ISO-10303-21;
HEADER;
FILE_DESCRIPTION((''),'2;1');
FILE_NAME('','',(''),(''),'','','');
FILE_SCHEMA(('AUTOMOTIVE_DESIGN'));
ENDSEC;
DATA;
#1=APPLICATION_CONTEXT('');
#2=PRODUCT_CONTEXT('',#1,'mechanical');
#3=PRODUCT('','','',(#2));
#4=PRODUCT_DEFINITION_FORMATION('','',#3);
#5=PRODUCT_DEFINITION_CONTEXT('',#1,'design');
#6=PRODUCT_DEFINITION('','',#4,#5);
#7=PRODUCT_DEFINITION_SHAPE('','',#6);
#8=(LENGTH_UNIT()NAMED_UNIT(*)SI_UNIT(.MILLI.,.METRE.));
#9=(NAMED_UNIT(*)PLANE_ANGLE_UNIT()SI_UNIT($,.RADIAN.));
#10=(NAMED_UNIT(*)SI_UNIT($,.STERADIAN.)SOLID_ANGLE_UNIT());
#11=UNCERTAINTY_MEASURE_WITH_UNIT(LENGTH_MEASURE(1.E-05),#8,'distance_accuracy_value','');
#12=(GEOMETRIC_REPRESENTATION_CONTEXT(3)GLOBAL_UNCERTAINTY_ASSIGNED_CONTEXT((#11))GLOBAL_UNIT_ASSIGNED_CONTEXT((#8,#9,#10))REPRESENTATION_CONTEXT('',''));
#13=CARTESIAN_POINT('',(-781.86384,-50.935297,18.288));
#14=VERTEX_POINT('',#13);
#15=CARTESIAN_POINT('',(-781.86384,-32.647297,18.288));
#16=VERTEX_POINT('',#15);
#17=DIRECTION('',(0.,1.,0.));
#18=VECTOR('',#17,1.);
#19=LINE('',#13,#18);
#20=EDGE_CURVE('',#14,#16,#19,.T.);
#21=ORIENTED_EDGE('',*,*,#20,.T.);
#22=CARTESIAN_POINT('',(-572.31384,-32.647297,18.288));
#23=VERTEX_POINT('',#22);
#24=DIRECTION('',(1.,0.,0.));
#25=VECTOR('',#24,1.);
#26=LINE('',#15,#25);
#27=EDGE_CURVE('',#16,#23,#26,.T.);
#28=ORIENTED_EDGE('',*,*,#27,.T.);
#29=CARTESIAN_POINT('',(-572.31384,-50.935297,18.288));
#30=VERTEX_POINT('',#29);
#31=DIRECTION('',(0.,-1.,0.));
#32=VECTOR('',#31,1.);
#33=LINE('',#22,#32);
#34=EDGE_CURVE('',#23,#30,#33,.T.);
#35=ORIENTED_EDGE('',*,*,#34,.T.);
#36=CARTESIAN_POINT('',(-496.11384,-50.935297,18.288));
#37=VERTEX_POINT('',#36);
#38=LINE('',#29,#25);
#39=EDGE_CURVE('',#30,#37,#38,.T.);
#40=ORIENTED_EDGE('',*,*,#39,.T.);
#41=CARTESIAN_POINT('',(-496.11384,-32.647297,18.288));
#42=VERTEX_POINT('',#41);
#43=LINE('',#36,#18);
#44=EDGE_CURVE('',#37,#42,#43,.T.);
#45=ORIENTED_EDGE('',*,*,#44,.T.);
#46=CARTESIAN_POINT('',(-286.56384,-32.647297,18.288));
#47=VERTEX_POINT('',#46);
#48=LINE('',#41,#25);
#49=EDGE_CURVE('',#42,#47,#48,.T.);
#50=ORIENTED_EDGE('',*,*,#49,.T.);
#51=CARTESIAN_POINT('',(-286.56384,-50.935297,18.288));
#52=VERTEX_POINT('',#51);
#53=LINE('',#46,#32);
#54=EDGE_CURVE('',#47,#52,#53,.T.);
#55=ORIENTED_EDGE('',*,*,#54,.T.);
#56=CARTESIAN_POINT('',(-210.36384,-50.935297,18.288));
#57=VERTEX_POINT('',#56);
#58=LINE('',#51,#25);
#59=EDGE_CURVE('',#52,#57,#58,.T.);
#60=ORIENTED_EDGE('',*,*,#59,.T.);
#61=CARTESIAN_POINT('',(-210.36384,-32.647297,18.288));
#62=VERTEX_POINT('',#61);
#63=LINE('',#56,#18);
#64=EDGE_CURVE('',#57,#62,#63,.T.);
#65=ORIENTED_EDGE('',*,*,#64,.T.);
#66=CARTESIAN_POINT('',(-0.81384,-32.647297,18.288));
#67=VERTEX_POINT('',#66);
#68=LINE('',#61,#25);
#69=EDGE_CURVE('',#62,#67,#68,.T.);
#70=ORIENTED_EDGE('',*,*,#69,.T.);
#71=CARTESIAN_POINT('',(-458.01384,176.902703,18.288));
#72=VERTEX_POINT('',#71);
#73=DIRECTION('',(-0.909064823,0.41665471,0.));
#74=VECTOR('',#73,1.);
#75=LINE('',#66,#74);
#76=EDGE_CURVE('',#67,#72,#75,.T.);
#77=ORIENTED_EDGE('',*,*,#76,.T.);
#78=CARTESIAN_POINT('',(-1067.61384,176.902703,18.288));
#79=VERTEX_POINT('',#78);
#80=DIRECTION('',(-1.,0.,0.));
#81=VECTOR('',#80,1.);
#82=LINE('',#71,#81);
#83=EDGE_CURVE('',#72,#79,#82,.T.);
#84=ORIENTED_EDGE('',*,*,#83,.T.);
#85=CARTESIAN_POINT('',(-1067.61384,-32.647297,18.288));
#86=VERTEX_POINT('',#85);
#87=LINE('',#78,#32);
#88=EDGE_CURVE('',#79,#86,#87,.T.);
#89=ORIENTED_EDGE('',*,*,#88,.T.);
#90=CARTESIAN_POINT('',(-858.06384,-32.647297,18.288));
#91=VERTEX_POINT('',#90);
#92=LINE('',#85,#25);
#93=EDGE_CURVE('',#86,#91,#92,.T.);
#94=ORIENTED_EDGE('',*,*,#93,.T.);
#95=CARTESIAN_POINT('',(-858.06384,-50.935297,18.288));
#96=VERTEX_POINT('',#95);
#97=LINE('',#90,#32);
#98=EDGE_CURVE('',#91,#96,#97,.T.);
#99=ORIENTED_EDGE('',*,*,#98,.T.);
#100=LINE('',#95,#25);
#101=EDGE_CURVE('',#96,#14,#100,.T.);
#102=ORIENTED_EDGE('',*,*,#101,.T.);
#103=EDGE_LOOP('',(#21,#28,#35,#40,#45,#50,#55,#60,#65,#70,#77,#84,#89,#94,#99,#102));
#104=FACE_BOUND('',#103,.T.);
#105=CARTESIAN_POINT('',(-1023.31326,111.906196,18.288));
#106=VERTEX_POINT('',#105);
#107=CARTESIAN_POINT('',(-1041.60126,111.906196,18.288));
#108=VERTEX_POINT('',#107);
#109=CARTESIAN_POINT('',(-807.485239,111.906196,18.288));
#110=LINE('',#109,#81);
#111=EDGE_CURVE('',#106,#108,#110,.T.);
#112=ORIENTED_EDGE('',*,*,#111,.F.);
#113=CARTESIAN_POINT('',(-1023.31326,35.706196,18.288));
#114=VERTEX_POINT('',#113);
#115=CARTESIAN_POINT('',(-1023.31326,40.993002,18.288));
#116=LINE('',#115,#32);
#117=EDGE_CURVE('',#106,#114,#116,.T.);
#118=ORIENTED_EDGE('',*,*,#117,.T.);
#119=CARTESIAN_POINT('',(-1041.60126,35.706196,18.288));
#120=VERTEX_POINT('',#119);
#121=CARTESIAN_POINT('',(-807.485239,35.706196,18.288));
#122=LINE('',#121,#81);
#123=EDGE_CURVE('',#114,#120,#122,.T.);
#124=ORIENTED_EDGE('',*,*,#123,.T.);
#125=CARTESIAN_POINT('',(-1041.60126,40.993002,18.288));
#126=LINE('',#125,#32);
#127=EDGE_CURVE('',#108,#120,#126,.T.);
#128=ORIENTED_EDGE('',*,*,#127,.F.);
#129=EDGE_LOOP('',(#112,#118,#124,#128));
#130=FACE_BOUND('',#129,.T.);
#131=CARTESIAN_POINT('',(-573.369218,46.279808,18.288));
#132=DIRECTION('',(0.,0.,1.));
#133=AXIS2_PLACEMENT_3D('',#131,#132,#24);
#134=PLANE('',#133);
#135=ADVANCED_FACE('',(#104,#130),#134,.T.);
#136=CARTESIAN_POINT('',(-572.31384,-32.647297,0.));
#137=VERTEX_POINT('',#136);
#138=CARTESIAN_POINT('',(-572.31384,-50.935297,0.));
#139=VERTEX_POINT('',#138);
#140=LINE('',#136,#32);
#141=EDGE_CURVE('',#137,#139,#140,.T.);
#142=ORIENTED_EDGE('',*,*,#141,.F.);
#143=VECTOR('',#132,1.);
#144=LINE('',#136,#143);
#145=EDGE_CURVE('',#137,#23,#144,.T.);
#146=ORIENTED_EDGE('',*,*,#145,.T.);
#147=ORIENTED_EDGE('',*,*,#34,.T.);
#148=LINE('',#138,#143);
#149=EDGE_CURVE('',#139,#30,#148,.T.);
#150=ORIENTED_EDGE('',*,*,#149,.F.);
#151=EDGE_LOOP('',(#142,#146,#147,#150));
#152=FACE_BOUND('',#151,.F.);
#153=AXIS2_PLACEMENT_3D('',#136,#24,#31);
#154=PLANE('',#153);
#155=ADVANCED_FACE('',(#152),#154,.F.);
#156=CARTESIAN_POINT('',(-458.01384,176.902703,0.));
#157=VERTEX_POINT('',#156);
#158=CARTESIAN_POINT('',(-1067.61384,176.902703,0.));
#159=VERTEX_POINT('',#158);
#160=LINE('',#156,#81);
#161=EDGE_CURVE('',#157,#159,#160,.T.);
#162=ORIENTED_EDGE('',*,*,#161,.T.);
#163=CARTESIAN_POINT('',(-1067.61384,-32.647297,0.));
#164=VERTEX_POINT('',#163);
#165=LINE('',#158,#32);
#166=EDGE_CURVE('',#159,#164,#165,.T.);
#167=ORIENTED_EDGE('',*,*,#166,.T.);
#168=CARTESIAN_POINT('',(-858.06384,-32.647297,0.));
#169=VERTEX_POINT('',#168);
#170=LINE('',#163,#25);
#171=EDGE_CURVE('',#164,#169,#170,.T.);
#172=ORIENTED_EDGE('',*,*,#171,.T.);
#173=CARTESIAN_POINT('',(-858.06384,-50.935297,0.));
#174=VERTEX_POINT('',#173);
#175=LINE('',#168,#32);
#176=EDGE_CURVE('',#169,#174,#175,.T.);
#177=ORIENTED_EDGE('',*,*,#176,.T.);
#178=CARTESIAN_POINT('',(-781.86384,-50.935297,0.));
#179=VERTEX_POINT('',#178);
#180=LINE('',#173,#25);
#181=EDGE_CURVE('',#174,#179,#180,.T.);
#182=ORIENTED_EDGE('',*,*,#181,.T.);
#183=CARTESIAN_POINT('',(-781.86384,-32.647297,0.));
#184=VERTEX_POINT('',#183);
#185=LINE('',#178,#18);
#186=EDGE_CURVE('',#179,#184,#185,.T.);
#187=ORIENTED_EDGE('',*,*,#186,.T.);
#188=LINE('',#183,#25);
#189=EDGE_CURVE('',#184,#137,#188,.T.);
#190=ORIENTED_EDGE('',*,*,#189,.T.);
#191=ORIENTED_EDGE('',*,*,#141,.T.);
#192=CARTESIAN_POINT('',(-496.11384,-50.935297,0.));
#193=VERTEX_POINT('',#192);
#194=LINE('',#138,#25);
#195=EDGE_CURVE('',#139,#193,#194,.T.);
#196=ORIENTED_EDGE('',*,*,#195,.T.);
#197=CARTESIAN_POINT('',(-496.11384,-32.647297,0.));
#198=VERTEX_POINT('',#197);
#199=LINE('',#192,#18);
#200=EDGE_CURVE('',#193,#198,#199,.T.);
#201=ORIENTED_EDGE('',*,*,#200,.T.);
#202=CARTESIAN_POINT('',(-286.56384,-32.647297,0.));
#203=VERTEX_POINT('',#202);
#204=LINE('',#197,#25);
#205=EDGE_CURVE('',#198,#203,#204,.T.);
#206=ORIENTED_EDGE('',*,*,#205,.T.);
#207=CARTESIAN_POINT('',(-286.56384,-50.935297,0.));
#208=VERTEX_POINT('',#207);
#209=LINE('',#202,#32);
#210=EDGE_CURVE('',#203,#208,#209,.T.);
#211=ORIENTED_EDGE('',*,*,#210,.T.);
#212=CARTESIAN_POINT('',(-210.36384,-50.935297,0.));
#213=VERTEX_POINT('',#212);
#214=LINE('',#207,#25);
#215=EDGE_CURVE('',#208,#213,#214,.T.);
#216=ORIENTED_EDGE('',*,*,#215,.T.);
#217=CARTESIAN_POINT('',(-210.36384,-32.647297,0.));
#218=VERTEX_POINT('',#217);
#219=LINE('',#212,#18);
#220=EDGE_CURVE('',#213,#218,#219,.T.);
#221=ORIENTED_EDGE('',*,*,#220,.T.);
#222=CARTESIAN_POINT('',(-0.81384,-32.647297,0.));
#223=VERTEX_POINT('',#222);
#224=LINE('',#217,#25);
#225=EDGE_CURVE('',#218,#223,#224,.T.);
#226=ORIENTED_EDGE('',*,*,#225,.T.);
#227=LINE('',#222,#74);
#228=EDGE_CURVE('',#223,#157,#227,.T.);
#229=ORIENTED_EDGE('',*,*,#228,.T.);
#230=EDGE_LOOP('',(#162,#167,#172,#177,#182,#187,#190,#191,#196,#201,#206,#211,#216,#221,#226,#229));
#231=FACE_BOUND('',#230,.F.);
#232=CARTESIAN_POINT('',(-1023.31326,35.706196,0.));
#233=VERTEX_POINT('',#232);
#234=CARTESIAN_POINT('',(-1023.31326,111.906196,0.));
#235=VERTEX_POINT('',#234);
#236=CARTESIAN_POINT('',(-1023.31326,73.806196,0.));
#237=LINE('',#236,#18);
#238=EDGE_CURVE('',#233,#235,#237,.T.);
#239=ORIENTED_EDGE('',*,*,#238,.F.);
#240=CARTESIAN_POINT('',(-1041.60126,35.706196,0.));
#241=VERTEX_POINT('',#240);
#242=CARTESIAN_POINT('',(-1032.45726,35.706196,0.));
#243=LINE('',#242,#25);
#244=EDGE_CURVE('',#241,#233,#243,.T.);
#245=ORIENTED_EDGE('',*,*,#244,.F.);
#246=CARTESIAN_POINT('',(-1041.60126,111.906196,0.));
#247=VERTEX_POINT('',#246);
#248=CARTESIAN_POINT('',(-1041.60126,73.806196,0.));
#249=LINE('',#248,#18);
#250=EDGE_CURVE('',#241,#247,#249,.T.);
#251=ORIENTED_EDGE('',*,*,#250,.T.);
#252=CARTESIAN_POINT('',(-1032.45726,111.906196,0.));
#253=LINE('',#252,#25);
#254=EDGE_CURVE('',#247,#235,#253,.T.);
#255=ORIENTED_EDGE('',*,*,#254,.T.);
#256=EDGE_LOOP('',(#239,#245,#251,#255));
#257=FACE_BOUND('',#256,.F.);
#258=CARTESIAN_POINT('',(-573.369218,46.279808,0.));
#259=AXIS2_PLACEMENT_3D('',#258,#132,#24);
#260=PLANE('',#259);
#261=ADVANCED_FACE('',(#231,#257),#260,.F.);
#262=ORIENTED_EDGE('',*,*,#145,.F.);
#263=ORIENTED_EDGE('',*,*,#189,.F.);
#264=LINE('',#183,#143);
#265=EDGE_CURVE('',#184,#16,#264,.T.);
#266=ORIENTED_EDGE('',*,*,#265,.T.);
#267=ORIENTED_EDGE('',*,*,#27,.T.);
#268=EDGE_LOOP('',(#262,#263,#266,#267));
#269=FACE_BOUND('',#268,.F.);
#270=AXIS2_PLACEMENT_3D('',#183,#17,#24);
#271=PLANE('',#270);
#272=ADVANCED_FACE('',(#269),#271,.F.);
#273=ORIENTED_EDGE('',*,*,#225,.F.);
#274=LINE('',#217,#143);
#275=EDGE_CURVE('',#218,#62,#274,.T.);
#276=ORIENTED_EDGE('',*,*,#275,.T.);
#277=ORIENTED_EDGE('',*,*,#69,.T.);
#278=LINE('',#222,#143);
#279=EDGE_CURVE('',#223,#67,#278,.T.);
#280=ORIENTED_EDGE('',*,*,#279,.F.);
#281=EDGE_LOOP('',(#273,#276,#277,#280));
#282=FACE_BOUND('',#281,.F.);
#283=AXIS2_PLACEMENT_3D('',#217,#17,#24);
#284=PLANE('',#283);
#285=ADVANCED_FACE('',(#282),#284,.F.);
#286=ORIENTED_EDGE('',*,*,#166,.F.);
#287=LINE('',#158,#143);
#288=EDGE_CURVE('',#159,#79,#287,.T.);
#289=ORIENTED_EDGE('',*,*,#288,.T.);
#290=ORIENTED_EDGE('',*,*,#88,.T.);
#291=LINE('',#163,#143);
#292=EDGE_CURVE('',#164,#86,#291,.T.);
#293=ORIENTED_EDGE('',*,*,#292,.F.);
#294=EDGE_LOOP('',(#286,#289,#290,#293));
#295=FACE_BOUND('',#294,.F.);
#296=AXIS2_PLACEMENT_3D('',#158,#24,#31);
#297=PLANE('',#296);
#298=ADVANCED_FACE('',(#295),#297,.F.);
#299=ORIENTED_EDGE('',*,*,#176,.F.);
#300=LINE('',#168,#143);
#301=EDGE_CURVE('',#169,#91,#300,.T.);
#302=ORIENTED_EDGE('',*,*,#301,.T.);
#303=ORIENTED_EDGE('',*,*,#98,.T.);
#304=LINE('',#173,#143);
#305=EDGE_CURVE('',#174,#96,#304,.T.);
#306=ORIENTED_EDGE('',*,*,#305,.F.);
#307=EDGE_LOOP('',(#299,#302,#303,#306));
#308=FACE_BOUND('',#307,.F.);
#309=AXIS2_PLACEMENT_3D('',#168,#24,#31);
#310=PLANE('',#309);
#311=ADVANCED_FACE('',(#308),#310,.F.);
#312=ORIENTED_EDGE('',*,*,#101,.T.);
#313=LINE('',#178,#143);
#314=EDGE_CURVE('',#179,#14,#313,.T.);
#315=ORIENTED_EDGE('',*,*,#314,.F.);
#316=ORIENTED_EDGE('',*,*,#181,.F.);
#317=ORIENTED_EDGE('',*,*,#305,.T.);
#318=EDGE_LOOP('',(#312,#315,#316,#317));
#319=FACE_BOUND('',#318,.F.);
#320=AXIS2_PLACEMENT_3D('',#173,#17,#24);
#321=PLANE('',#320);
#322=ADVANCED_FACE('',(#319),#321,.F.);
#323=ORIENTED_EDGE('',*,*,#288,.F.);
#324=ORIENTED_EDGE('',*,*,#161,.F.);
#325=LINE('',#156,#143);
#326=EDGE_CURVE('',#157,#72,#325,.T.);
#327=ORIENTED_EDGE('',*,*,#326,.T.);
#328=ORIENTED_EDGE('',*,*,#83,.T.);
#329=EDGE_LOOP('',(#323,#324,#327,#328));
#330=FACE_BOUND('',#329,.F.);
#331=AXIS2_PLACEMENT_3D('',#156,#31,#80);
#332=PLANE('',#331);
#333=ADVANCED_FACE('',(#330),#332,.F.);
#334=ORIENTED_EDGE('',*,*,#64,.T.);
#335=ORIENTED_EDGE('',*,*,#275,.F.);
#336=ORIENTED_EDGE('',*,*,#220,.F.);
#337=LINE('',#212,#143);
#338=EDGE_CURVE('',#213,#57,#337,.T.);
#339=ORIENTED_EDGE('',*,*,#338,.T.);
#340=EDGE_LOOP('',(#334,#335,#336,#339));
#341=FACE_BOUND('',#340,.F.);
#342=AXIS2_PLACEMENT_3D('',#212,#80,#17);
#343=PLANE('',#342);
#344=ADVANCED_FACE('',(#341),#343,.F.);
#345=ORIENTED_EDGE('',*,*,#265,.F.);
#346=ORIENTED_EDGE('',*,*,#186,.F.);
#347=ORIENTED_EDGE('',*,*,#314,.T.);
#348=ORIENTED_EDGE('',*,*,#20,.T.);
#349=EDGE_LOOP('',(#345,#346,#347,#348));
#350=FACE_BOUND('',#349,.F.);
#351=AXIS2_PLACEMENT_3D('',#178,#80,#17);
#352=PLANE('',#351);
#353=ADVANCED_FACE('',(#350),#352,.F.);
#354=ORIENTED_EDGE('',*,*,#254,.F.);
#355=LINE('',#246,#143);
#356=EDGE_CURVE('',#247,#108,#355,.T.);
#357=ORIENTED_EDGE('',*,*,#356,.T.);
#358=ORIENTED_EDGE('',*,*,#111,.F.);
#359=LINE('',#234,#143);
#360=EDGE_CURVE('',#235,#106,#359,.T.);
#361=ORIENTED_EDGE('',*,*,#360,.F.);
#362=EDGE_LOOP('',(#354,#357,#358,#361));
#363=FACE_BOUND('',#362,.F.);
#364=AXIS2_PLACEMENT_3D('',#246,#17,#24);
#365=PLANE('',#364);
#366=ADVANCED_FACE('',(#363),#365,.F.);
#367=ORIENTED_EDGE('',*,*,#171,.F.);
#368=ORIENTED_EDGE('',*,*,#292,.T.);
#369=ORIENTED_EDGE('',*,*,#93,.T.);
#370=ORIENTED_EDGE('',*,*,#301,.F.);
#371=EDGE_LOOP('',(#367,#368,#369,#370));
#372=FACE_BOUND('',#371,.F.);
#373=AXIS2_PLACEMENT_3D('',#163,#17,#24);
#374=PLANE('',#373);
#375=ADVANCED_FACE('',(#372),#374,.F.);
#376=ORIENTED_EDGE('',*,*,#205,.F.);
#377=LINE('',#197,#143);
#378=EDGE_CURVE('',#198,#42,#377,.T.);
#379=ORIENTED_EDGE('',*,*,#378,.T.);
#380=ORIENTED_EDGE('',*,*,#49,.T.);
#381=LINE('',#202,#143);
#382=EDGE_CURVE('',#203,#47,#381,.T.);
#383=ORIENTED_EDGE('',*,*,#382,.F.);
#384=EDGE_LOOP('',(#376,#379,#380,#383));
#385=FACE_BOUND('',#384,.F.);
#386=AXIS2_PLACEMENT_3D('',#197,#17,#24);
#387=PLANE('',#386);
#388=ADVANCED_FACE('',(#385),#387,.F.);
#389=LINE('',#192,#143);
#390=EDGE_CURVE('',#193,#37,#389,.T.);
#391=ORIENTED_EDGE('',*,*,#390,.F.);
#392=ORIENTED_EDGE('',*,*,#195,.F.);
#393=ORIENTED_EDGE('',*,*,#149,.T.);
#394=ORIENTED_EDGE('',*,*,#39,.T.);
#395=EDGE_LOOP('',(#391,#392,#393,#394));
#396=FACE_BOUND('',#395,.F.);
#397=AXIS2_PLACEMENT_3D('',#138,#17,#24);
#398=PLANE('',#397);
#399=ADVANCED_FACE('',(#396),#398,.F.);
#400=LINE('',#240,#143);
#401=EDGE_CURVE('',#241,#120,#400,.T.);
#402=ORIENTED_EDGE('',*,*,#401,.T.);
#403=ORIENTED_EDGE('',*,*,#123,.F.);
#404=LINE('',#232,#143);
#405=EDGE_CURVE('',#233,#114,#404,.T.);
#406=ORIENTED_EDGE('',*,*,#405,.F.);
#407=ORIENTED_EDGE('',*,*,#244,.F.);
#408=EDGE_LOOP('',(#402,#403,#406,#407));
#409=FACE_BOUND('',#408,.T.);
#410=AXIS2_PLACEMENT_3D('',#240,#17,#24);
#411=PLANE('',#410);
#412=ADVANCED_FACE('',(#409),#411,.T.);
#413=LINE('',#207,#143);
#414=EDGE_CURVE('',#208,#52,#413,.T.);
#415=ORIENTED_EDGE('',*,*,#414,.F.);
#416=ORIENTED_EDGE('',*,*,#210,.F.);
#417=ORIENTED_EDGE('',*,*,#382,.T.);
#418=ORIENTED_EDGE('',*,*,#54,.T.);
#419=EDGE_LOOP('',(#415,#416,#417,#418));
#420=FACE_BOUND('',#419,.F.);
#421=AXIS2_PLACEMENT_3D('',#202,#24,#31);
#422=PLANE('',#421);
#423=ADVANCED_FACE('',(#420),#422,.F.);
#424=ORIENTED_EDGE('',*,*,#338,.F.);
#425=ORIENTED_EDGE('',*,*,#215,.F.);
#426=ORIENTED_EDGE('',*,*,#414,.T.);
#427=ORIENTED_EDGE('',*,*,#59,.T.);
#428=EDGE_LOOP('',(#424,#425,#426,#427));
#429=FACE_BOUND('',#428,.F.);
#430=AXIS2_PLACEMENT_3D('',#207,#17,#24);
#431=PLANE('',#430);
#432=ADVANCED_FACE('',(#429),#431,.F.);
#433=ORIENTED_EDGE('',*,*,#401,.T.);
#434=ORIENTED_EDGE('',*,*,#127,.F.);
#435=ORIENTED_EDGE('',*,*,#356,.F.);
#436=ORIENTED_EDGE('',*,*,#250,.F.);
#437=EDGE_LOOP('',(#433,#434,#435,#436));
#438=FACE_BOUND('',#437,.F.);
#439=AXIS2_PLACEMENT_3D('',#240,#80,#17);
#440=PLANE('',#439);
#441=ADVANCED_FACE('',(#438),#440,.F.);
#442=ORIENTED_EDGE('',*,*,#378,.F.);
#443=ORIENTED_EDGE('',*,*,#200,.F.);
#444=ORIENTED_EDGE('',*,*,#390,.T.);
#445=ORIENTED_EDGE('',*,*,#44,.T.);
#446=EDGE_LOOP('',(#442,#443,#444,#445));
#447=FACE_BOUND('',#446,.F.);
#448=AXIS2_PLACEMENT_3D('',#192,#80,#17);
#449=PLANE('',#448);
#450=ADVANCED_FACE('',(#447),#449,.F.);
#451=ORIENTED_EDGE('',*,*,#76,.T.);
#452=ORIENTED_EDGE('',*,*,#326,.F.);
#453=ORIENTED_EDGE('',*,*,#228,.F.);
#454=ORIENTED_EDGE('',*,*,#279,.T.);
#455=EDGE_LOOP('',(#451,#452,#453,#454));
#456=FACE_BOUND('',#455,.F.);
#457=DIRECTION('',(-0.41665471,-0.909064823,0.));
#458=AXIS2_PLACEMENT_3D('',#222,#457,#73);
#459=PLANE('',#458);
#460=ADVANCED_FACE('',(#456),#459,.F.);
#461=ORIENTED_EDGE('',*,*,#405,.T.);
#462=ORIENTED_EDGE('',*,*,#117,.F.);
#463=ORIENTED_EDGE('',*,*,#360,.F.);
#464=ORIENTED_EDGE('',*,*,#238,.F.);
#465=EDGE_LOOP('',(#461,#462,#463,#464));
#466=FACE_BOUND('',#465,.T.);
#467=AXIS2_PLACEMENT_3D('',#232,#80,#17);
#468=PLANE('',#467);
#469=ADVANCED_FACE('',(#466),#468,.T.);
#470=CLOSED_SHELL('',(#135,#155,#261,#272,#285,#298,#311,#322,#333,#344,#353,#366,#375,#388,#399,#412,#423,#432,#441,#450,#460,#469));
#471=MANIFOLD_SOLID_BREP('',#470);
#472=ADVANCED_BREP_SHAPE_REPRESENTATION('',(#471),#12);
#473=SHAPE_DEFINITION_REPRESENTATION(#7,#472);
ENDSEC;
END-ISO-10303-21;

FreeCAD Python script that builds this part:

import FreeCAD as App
import Part
import Sketcher
from FreeCAD import Vector
Q = App.Units.Quantity


def add_polygon(sketch, points):
    """Adds a closed chain of lines whose ends are joined by coincident constraints."""
    first, n = sketch.GeometryCount, len(points)
    for a, b in zip(points, points[1:] + points[:1]):
        sketch.addGeometry(Part.LineSegment(App.Vector(*a, 0), App.Vector(*b, 0)), False)
    for i in range(n):
        sketch.addConstraint(Sketcher.Constraint("Coincident", first + i, 2, first + (i + 1) % n, 1))

doc = App.newDocument("Part")
body = doc.addObject("PartDesign::Body", "Body")

# Sketch on XY plane
sketch1 = body.newObject("Sketcher::SketchObject", "Sketch")
sketch1.AttachmentSupport = (doc.getObject("XY_Plane"), [""])
sketch1.MapMode = "FlatFace"
add_polygon(sketch1, [(-1067.61384, 176.902703), (-1067.61384, -32.647297), (-858.06384, -32.647297), (-858.06384, -50.935297), (-781.86384, -50.935297), (-781.86384, -32.647297), (-572.31384, -32.647297), (-572.31384, -50.935297), (-496.11384, -50.935297), (-496.11384, -32.647297), (-286.56384, -32.647297), (-286.56384, -50.935297), (-210.36384, -50.935297), (-210.36384, -32.647297), (-0.81384, -32.647297), (-458.01384, 176.902703)])  # lines 0-15
sketch1.addConstraint([
    Sketcher.Constraint("Vertical", 0),
    Sketcher.Constraint("Horizontal", 1),
    Sketcher.Constraint("Vertical", 2),
    Sketcher.Constraint("Horizontal", 3),
    Sketcher.Constraint("Vertical", 4),
    Sketcher.Constraint("Horizontal", 5),
    Sketcher.Constraint("Vertical", 6),
    Sketcher.Constraint("Horizontal", 7),
    Sketcher.Constraint("Vertical", 8),
    Sketcher.Constraint("Horizontal", 9),
    Sketcher.Constraint("Vertical", 10),
    Sketcher.Constraint("Horizontal", 11),
    Sketcher.Constraint("Vertical", 12),
    Sketcher.Constraint("Horizontal", 13),
    Sketcher.Constraint("Horizontal", 15),
    Sketcher.Constraint("Horizontal", 1, 2, 4, 2),
    Sketcher.Constraint("Horizontal", 3, 2, 6, 2),
    Sketcher.Constraint("Horizontal", 5, 2, 8, 2),
    Sketcher.Constraint("Horizontal", 7, 2, 10, 2),
    Sketcher.Constraint("Horizontal", 9, 2, 12, 2),
    Sketcher.Constraint("Equal", 1, 5),
    Sketcher.Constraint("Equal", 3, 7),
    Sketcher.Constraint("Equal", 5, 9),
    Sketcher.Constraint("Equal", 7, 11),
    Sketcher.Constraint("Equal", 9, 13),
    Sketcher.Constraint("Equal", 13, 0),
    Sketcher.Constraint("DistanceX", 3, 1, 3, 2, Q("3 in")),
    Sketcher.Constraint("DistanceX", 15, 2, 15, 1, Q("24 in")),
    Sketcher.Constraint("DistanceX", 1, 1, 1, 2, Q("8.25 in")),
    Sketcher.Constraint("DistanceY", 2, 2, 2, 1, Q("0.72 in")),
    Sketcher.Constraint("DistanceX", 0, 2, -1, 1, 1067.61384),
    Sketcher.Constraint("DistanceY", 0, 2, -1, 1, 32.647297),
])
pad1 = body.newObject("PartDesign::Pad", "Pad")
pad1.Profile = sketch1
pad1.Length = Q("0.72 in")

# Sketch on XY plane
sketch2 = body.newObject("Sketcher::SketchObject", "Sketch001")
sketch2.AttachmentSupport = (doc.getObject("XY_Plane"), [""])
sketch2.MapMode = "FlatFace"
add_polygon(sketch2, [(-1041.60126, 111.906196), (-1041.60126, 35.706196), (-1023.31326, 35.706196), (-1023.31326, 111.906196)])  # lines 0-3
sketch2.addConstraint([
    Sketcher.Constraint("Vertical", 0),
    Sketcher.Constraint("Horizontal", 1),
    Sketcher.Constraint("Vertical", 2),
    Sketcher.Constraint("Horizontal", 3),
    Sketcher.Constraint("DistanceY", 0, 2, 0, 1, Q("3 in")),
    Sketcher.Constraint("DistanceX", 1, 1, 1, 2, Q("0.72 in")),
    Sketcher.Constraint("DistanceX", 0, 2, -1, 1, 1041.60126),
    Sketcher.Constraint("DistanceY", -1, 1, 0, 2, 35.706196),
])
pocket1 = body.newObject("PartDesign::Pocket", "Pocket")
pocket1.Profile = sketch2
pocket1.Length = Q("1 in")
pocket1.Reversed = True

doc.recompute()
